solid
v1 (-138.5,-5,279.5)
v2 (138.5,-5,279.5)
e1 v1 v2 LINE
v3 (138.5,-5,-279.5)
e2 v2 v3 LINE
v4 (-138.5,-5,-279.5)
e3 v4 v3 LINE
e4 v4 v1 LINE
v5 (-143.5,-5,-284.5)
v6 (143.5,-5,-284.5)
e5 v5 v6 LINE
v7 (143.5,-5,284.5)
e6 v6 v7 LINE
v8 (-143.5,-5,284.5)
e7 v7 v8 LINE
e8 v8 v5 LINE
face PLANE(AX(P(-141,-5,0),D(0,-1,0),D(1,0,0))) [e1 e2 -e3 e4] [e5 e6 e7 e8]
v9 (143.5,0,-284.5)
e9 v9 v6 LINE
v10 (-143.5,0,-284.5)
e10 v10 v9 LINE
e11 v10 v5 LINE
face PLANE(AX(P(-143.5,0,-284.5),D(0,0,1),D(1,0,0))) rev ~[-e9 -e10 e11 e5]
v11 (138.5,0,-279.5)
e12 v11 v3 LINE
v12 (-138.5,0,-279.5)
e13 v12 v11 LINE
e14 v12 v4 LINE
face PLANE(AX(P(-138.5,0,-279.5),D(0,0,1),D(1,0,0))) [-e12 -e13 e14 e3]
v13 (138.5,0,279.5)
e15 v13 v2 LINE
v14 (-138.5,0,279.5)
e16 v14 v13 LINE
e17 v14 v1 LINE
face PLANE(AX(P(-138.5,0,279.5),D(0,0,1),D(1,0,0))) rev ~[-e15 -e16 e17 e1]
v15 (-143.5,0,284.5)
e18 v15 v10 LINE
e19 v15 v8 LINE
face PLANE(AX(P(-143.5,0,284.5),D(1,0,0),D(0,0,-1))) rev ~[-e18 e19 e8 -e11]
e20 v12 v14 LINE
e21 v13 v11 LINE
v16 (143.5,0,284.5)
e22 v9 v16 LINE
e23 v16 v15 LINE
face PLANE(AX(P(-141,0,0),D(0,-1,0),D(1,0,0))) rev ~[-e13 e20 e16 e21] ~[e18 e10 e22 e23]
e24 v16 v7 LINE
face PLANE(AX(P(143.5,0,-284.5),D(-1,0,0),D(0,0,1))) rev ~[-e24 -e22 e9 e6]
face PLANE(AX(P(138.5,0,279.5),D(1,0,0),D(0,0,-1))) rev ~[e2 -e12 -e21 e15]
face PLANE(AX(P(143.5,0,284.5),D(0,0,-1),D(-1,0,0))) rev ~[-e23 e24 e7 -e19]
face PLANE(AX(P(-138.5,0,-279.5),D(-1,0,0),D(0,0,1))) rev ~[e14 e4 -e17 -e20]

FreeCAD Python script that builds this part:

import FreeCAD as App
import Part
import Sketcher

V = App.Vector


def add_polygon(sketch, points):
    """Adds a closed chain of lines whose ends are joined by coincident constraints."""
    first, n = sketch.GeometryCount, len(points)
    for a, b in zip(points, points[1:] + points[:1]):
        sketch.addGeometry(Part.LineSegment(App.Vector(*a, 0), App.Vector(*b, 0)), False)
    for i in range(n):
        sketch.addConstraint(Sketcher.Constraint("Coincident", first + i, 2, first + (i + 1) % n, 1))

doc = App.newDocument("Part")
body = doc.addObject("PartDesign::Body", "Body")

sketch1 = body.newObject("Sketcher::SketchObject", "Sketch")
sketch1.AttachmentSupport = (doc.getObject("XZ_Plane"), [""])
sketch1.MapMode = "FlatFace"
add_polygon(sketch1, [(-144, 284), (-144, -284), (144, -284), (144, 284)])
add_polygon(sketch1, [(-138, -280), (-138, 280), (138, 280), (138, -280)])
sketch1.addConstraint([
    Sketcher.Constraint("Vertical", 0),
    Sketcher.Constraint("Horizontal", 1),
    Sketcher.Constraint("Vertical", 2),
    Sketcher.Constraint("Horizontal", 3),
    Sketcher.Constraint("Vertical", 4),
    Sketcher.Constraint("Horizontal", 5),
    Sketcher.Constraint("Vertical", 6),
    Sketcher.Constraint("Horizontal", 7),
    Sketcher.Constraint("Symmetric", 0, 2, 2, 2, -1, 1),
    Sketcher.Constraint("Symmetric", 4, 2, 6, 2, -1, 1),
    Sketcher.Constraint("DistanceX", 1, 1, 1, 2, 287.0),
    Sketcher.Constraint("DistanceX", 5, 1, 5, 2, 277.0),
    Sketcher.Constraint("DistanceY", 0, 2, 0, 1, 569.0),
    Sketcher.Constraint("DistanceY", 4, 1, 4, 2, 559.0),
])
pad1 = body.newObject("PartDesign::Pad", "Pad")
pad1.Profile = sketch1
pad1.Length = 5

doc.recompute()
